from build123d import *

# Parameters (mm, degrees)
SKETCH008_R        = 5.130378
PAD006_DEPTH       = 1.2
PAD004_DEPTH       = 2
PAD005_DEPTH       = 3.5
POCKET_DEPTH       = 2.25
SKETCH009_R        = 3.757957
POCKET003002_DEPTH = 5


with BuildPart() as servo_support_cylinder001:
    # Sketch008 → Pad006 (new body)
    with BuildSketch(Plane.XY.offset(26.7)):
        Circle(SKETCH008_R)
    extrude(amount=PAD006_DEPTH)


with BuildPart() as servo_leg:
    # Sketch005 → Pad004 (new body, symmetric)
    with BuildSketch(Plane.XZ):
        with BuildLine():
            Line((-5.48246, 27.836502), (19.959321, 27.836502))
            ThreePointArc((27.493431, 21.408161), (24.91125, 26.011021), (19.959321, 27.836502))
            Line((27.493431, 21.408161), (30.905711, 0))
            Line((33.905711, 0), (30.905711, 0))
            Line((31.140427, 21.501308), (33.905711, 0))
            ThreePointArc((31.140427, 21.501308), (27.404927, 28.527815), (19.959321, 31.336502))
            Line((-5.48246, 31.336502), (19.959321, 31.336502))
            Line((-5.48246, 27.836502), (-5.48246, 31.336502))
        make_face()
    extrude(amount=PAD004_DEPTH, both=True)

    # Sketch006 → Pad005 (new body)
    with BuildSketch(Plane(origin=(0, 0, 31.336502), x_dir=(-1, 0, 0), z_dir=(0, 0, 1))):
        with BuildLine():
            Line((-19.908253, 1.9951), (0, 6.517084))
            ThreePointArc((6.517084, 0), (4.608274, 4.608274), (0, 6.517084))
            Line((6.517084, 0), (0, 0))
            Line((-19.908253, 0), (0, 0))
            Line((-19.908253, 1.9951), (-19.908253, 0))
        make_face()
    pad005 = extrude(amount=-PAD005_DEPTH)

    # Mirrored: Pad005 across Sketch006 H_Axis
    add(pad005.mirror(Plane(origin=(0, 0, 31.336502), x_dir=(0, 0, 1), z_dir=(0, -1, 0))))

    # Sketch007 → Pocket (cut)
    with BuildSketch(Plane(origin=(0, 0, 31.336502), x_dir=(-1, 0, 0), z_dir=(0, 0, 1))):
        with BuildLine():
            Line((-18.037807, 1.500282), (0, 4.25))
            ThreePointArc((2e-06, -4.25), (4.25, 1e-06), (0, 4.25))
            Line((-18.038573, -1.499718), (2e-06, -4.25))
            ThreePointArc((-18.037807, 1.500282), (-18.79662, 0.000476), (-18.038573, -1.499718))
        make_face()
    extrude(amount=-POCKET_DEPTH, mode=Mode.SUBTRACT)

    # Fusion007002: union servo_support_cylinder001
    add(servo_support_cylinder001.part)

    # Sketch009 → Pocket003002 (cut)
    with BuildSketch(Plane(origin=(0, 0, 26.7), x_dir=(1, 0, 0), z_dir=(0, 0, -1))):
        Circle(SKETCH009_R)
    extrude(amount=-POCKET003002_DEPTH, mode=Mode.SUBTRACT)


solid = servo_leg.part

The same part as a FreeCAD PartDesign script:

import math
import FreeCAD as App
import Part
import Sketcher

V = App.Vector
Q = App.Units.Quantity

doc = App.newDocument("Part")
body = doc.addObject("PartDesign::Body", "Body")

# Sketch on XY plane
sketch1 = body.newObject("Sketcher::SketchObject", "Sketch")
sketch1.AttachmentSupport = (doc.getObject("XY_Plane"), [""])
sketch1.MapMode = "FlatFace"
sketch1.AttachmentOffset = App.Placement(V(0, 0, 26.7), App.Rotation())
sketch1.addGeometry(Part.Circle(V(0, 0, 0), V(0, 0, 1), 5), False)
sketch1.addConstraint([
    Sketcher.Constraint("Coincident", 0, 3, -1, 1),
    Sketcher.Constraint("Diameter", 0, Q("10.260756 mm")),
])
pad1 = body.newObject("PartDesign::Pad", "Pad")
pad1.Profile = sketch1
pad1.Length = 1.2
body2 = doc.addObject("PartDesign::Body", "Body001")

# Sketch on XZ plane
sketch2 = body2.newObject("Sketcher::SketchObject", "Sketch001")
sketch2.AttachmentSupport = (doc.getObject("XZ_Plane001"), [""])
sketch2.MapMode = "FlatFace"
sketch2.addGeometry([
    Part.LineSegment(V(-5.5, 27.8, 0), V(20, 27.8, 0)),  # 0
    Part.ArcOfCircle(Part.Circle(V(20, 20.2, 0), V(0, 0, 1), 7.6), math.radians(9), math.radians(90)),  # 1
    Part.LineSegment(V(27.5, 21.4, 0), V(30.9, 0, 0)),  # 2
    Part.LineSegment(V(30.9, 0, 0), V(33.9, 0, 0)),  # 3
    Part.LineSegment(V(33.9, 0, 0), V(31.1, 21.5, 0)),  # 4
    Part.ArcOfCircle(Part.Circle(V(20, 20.1, 0), V(0, 0, 1), 11.3), math.radians(7), math.radians(90)),  # 5
    Part.LineSegment(V(20, 31.3, 0), V(-5.5, 31.3, 0)),  # 6
    Part.LineSegment(V(-5.5, 31.3, 0), V(-5.5, 27.8, 0)),  # 7
], False)
sketch2.addConstraint([
    Sketcher.Constraint("Tangent", 0, 2, 1, 2),
    Sketcher.Constraint("Tangent", 1, 1, 2, 1),
    Sketcher.Constraint("Coincident", 2, 2, 3, 1),
    Sketcher.Constraint("Coincident", 3, 2, 4, 1),
    Sketcher.Constraint("Tangent", 4, 2, 5, 1),
    Sketcher.Constraint("Tangent", 5, 2, 6, 1),
    Sketcher.Constraint("Coincident", 6, 2, 7, 1),
    Sketcher.Constraint("Coincident", 7, 2, 0, 1),
    Sketcher.Constraint("Horizontal", 0),
    Sketcher.Constraint("Horizontal", 3),
    Sketcher.Constraint("Horizontal", 6),
    Sketcher.Constraint("Vertical", 7),
    Sketcher.Constraint("PointOnObject", 2, 2, -1),
    Sketcher.Constraint("Vertical", 1, 3, 5, 3),
    Sketcher.Constraint("Equal", 2, 4),
    Sketcher.Constraint("DistanceX", 3, 1, 3, 2, Q("3 mm")),
    Sketcher.Constraint("DistanceY", 7, 2, 7, 1, Q("3.5 mm")),
    Sketcher.Constraint("Radius", 1, Q("7.629212 mm")),
    Sketcher.Constraint("Radius", 5, Q("11.273197 mm")),
    Sketcher.Constraint("Distance", 2, Q("21.6784 mm")),
    Sketcher.Constraint("DistanceX", 0, 1, 0, 2, Q("25.441781 mm")),
    Sketcher.Constraint("DistanceX", -1, 1, 5, 3, Q("19.959321 mm")),
])
pad2 = body2.newObject("PartDesign::Pad", "Pad001")
pad2.Profile = sketch2
pad2.Length = 4
pad2.Midplane = True

# Sketch on XY plane
sketch3 = body2.newObject("Sketcher::SketchObject", "Sketch002")
sketch3.AttachmentSupport = (doc.getObject("XY_Plane001"), [""])
sketch3.MapMode = "FlatFace"
sketch3.AttachmentOffset = App.Placement(V(0, 0, 31.336502), App.Rotation())
sketch3.addGeometry([
    Part.LineSegment(V(0, -6.5, 0), V(19.9, -2, 0)),
    Part.LineSegment(V(19.9, -2, 0), V(19.9, 0, 0)),
    Part.LineSegment(V(19.9, 0, 0), V(-6.5, 0, 0)),
    Part.ArcOfCircle(Part.Circle(V(0, 0, 0), V(0, 0, 1), 6.5), math.radians(-180), math.radians(-90)),
], False)
sketch3.addConstraint([
    Sketcher.Constraint("Coincident", 0, 2, 1, 1),
    Sketcher.Constraint("Coincident", 1, 2, 2, 1),
    Sketcher.Constraint("Coincident", 2, 2, 3, 1),
    Sketcher.Constraint("Coincident", 3, 2, 0, 1),
    Sketcher.Constraint("Vertical", 1),
    Sketcher.Constraint("Horizontal", 2),
    Sketcher.Constraint("Coincident", 3, 3, -1, 1),
    Sketcher.Constraint("PointOnObject", 1, 2, -1),
    Sketcher.Constraint("PointOnObject", 3, 2, -2),
    Sketcher.Constraint("DistanceY", 1, 1, 1, 2, Q("1.9951 mm")),
    Sketcher.Constraint("Radius", 3, Q("6.517085 mm")),
    Sketcher.Constraint("Distance", 0, Q("20.415359 mm")),
])
pad3 = body2.newObject("PartDesign::Pad", "Pad002")
pad3.Profile = sketch3
pad3.Length = 3.5
pad3.Reversed = True
doc.recompute()

mirrored = body2.newObject("PartDesign::Mirrored", "Mirrored")
mirrored.Originals = [pad3]
mirrored.MirrorPlane = (doc.getObject("XZ_Plane001"), [""])
body2.Tip = mirrored

# Sketch on XY plane
sketch4 = body2.newObject("Sketcher::SketchObject", "Sketch003")
sketch4.AttachmentSupport = (doc.getObject("XY_Plane001"), [""])
sketch4.MapMode = "FlatFace"
sketch4.AttachmentOffset = App.Placement(V(0, 0, 31.336502), App.Rotation())
sketch4.addGeometry([
    Part.LineSegment(V(0, -4.2, 0), V(18, -1.5, 0)),
    Part.ArcOfCircle(Part.Circle(V(16.9, 0, 0), V(0, 0, 1), 1.9), math.radians(-54), math.radians(54)),
    Part.LineSegment(V(18, 1.5, 0), V(0, 4.2, 0)),
    Part.ArcOfCircle(Part.Circle(V(0, 0, 0), V(0, 0, 1), 4.2), math.radians(90), math.radians(270)),
], False)
sketch4.addConstraint([
    Sketcher.Constraint("Coincident", 0, 2, 1, 1),
    Sketcher.Constraint("Coincident", 1, 2, 2, 1),
    Sketcher.Constraint("Coincident", 2, 2, 3, 1),
    Sketcher.Constraint("Coincident", 3, 2, 0, 1),
    Sketcher.Constraint("Coincident", 3, 3, -1, 1),
    Sketcher.Constraint("PointOnObject", 1, 3, -1),
    Sketcher.Constraint("PointOnObject", 3, 2, -2),
    Sketcher.Constraint("Radius", 3, Q("4.25 mm")),
    Sketcher.Constraint("DistanceY", 0, 2, 1, 2, Q("3 mm")),
    Sketcher.Constraint("Radius", 1, Q("1.862542 mm")),
    Sketcher.Constraint("Distance", 0, Q("18.246189 mm")),
    Sketcher.Constraint("DistanceY", 0, 2, -1, 1, Q("1.500282 mm")),
    Sketcher.Constraint("DistanceX", 2, 2, 1, 3, Q("16.93408 mm")),
])
pocket1 = body2.newObject("PartDesign::Pocket", "Pocket")
pocket1.Profile = sketch4
pocket1.Length = 2.25
doc.recompute()

boolean = body2.newObject("PartDesign::Boolean", "Boolean")
boolean.Type = "Fuse"
boolean.addObjects([body])

# Sketch on XY plane
sketch5 = body2.newObject("Sketcher::SketchObject", "Sketch004")
sketch5.AttachmentSupport = (doc.getObject("XY_Plane001"), [""])
sketch5.MapMode = "FlatFace"
sketch5.AttachmentOffset = App.Placement(V(0, 0, 26.7), App.Rotation())
sketch5.addGeometry(Part.Circle(V(0, 0, 0), V(0, 0, 1), 3.8), False)
sketch5.addConstraint([
    Sketcher.Constraint("Coincident", 0, 3, -1, 1),
    Sketcher.Constraint("Diameter", 0, Q("7.515914 mm")),
])
pocket2 = body2.newObject("PartDesign::Pocket", "Pocket001")
pocket2.Profile = sketch5
pocket2.Length = 5
pocket2.Reversed = True

doc.recompute()
